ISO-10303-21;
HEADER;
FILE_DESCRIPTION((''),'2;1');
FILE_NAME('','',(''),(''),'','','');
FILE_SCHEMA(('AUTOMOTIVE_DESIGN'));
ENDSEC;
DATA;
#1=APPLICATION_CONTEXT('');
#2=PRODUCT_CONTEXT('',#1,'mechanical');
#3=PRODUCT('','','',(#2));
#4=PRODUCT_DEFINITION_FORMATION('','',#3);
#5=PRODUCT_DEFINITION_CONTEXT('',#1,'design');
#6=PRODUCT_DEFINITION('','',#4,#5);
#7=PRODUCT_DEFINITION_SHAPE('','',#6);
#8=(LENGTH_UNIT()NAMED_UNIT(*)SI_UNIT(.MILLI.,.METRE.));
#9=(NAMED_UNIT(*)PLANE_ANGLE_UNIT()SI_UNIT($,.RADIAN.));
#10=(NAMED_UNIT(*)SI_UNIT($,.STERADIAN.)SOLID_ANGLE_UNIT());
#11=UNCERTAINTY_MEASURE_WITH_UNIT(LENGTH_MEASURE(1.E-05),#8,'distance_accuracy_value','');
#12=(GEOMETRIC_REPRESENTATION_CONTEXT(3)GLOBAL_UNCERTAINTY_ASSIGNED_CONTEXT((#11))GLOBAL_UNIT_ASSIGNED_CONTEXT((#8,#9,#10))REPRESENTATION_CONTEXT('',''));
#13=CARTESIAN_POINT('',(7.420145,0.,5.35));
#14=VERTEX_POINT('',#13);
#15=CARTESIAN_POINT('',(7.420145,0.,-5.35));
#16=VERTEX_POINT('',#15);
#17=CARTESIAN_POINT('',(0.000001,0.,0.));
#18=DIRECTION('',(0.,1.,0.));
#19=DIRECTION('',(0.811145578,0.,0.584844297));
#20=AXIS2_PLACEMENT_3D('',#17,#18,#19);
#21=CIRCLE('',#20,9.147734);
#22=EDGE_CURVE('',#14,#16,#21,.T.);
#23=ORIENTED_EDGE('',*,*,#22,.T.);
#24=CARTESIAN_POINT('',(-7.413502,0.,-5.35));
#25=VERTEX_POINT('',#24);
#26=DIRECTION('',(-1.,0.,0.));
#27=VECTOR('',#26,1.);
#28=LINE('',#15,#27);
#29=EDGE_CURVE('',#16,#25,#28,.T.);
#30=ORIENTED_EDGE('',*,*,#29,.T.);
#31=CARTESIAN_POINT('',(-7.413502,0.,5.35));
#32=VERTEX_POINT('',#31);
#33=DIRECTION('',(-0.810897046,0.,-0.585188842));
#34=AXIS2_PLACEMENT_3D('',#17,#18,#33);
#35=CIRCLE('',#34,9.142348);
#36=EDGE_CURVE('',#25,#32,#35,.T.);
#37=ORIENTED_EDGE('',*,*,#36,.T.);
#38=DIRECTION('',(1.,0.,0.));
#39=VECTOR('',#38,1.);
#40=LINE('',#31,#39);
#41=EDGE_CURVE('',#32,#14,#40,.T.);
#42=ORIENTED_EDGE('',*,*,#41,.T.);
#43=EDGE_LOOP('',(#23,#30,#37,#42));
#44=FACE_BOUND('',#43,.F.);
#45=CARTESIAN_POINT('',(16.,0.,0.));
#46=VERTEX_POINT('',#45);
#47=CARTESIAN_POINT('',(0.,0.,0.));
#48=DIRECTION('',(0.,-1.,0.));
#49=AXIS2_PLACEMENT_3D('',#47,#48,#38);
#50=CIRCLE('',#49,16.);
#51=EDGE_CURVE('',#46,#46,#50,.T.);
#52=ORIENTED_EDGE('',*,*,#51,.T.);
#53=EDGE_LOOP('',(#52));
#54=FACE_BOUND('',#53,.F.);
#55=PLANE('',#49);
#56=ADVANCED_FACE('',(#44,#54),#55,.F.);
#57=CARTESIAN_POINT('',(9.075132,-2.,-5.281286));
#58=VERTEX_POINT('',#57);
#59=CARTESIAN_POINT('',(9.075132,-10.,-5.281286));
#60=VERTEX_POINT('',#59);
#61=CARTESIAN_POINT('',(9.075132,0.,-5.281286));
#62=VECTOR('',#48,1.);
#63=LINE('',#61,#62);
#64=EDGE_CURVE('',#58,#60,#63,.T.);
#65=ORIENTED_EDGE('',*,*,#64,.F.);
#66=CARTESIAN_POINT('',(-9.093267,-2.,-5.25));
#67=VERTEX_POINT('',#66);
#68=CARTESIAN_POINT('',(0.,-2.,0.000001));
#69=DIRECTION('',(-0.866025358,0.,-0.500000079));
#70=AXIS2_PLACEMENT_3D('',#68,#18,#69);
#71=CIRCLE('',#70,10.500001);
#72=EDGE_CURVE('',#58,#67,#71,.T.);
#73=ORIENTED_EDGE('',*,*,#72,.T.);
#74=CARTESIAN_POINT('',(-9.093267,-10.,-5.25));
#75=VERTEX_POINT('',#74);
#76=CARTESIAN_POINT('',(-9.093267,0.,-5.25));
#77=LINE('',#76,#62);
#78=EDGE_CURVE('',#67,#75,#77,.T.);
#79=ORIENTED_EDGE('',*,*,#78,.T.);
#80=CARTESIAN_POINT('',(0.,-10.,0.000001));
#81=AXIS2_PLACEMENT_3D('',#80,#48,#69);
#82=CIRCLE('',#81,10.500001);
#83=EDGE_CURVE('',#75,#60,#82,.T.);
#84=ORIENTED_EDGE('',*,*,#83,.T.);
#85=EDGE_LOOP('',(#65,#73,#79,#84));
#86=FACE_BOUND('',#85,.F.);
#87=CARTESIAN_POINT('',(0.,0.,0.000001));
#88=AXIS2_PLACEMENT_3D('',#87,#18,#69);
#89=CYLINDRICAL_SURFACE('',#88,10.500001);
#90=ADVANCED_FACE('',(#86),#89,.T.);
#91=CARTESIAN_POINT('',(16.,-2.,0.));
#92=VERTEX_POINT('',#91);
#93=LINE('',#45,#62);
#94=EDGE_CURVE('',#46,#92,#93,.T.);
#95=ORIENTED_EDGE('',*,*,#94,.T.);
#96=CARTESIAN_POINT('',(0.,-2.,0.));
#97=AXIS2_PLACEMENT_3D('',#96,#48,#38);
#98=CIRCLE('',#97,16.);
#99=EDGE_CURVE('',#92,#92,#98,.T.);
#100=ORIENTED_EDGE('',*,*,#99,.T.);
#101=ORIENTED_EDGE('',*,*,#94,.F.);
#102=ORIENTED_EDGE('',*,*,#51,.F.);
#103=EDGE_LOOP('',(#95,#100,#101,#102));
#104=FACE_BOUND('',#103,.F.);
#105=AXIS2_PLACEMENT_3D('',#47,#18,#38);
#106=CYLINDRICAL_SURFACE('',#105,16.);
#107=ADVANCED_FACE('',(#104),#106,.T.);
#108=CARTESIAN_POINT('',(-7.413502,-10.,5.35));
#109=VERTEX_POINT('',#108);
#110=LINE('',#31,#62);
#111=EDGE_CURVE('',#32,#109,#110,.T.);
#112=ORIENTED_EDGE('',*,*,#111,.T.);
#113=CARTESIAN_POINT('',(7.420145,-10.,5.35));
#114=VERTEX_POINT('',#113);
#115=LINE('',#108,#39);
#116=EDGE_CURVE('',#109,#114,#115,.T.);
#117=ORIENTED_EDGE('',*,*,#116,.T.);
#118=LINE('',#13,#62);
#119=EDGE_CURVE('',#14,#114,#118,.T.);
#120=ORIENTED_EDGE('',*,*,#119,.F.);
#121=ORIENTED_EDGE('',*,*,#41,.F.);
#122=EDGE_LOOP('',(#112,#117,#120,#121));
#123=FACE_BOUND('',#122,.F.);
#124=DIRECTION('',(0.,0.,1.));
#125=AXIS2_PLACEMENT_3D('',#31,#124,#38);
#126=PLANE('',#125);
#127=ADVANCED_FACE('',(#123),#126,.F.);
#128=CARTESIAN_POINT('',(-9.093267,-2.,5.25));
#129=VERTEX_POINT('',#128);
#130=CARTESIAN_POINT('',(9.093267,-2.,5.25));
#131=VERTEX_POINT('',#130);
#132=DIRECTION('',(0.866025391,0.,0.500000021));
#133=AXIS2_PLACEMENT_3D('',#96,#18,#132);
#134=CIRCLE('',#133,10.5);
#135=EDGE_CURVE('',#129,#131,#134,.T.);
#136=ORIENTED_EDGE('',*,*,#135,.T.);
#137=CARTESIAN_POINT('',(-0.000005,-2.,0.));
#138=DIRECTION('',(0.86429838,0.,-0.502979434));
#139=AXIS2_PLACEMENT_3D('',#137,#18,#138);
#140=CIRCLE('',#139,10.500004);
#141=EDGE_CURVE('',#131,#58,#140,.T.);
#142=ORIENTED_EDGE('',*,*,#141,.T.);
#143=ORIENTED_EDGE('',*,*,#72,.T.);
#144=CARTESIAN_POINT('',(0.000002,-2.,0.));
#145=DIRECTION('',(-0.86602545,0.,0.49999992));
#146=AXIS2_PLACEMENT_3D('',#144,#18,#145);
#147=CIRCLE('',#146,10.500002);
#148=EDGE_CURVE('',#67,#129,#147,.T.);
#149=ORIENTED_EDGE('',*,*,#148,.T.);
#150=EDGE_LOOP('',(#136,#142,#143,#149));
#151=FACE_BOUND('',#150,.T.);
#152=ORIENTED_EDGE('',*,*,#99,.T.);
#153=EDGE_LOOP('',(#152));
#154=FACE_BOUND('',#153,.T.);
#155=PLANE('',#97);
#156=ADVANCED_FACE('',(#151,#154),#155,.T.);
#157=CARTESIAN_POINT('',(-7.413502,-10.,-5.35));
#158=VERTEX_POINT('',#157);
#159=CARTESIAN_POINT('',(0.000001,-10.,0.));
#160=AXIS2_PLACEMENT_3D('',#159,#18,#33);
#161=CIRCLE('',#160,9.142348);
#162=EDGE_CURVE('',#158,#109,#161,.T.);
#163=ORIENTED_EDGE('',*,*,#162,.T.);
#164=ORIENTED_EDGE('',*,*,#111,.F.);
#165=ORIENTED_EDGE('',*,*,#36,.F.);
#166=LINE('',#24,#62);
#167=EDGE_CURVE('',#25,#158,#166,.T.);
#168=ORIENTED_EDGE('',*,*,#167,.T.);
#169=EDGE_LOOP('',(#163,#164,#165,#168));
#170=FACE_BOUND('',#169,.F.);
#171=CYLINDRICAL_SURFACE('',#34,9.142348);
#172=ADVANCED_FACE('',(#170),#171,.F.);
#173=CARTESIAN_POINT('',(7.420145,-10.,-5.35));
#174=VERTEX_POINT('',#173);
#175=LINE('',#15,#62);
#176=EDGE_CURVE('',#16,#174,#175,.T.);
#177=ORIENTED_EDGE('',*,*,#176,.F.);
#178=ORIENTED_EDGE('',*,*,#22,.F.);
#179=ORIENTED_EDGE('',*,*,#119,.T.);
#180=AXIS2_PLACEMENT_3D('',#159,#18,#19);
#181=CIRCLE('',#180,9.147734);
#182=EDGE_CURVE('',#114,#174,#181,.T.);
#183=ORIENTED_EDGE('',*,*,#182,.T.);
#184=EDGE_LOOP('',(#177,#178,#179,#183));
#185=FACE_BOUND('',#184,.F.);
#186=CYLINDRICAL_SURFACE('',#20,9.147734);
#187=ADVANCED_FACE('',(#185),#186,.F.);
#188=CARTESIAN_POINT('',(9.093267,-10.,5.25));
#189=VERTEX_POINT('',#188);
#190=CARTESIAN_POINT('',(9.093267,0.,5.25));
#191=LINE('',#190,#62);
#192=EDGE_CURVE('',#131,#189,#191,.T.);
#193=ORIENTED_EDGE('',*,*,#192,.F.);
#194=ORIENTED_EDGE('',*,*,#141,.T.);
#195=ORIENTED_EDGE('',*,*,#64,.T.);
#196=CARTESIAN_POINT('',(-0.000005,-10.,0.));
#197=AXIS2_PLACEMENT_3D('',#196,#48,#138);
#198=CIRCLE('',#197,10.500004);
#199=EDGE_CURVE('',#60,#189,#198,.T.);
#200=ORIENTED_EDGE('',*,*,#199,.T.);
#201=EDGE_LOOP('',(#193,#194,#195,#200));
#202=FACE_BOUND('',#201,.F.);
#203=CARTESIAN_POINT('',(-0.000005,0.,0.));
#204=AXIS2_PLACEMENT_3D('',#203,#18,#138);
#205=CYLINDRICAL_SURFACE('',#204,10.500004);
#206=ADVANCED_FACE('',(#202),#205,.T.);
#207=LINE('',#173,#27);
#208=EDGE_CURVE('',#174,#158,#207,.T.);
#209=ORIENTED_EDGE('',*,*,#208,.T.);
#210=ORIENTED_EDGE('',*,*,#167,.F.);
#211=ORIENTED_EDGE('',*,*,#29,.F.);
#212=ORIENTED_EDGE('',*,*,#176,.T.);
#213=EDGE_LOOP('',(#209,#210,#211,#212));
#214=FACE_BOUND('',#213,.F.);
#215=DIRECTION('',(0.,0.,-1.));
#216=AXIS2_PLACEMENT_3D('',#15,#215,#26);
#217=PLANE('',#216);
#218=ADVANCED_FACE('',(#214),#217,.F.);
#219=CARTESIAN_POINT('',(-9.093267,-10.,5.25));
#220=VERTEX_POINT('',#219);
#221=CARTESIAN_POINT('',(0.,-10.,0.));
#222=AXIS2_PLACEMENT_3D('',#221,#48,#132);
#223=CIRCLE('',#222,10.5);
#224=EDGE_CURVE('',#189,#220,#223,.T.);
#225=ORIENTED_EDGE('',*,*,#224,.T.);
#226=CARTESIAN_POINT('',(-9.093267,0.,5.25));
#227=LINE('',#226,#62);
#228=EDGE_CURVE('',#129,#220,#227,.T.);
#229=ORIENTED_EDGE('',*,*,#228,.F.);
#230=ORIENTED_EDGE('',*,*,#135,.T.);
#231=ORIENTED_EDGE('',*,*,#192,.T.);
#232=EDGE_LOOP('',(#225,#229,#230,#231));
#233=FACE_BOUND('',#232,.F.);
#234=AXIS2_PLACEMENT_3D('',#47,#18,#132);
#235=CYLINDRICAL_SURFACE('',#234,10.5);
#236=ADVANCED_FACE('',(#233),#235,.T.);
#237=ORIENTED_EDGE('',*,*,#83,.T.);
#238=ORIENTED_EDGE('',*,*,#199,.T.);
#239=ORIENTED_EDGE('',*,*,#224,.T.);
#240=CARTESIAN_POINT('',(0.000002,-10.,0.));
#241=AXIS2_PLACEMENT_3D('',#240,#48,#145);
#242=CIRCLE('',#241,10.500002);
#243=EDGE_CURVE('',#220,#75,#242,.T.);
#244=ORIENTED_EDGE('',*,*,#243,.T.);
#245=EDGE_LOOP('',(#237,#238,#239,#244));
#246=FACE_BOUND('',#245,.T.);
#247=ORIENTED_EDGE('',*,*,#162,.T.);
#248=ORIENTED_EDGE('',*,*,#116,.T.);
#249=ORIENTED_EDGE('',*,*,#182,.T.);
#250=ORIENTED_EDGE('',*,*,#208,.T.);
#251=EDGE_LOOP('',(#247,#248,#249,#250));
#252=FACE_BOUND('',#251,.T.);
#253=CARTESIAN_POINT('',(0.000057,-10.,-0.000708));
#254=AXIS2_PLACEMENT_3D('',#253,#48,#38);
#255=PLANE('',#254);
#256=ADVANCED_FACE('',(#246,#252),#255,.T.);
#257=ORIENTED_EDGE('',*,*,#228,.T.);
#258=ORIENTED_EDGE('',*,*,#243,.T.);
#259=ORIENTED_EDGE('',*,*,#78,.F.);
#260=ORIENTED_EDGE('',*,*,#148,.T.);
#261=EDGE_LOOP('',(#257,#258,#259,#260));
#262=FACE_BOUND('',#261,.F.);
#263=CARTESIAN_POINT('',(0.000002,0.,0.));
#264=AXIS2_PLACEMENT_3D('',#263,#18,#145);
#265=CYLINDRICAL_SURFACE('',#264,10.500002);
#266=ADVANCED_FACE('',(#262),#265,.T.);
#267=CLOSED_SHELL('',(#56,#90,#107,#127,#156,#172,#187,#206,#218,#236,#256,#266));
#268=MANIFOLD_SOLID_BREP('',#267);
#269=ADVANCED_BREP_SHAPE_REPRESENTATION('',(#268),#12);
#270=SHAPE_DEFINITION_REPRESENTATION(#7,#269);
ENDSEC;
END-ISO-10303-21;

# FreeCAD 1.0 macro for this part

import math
import FreeCAD as App
import Part
import Sketcher
Q = App.Units.Quantity

doc = App.newDocument("Part")
params = doc.addObject("Spreadsheet::Sheet", "Params")
for row, (alias, value) in enumerate([
    ("sketch1_diameter", "32 mm"),
    ("sketch1_diameter2", "19 mm"),
    ("pad1_length", "2 mm"),
    ("sketch2_radius", "10.5 mm"),
    ("pad2_length", "10 mm"),
], start=1):
    params.set(f"A{row}", alias)
    params.set(f"B{row}", "=" + value)
    params.setAlias(f"B{row}", alias)

body = doc.addObject("PartDesign::Body", "Body")

# Sketch on XZ plane
sketch1 = body.newObject("Sketcher::SketchObject", "Sketch")
sketch1.AttachmentSupport = (doc.getObject("XZ_Plane"), [""])
sketch1.MapMode = "FlatFace"
sketch1.addGeometry(Part.Circle(App.Vector(0, 0, 0), App.Vector(0, 0, 1), 16), False)
sketch1.addGeometry(Part.Circle(App.Vector(0, 0, 0), App.Vector(0, 0, 1), 10), False)
sketch1.addConstraint(Sketcher.Constraint("Coincident", 0, 3, -1, 1))
sketch1.addConstraint(Sketcher.Constraint("Coincident", 1, 3, -1, 1))
sketch1.addConstraint(Sketcher.Constraint("Diameter", 0, Q("32 mm")))
sketch1.addConstraint(Sketcher.Constraint("Diameter", 1, Q("19 mm")))
sketch1.setExpression("Constraints[2]", "Params.sketch1_diameter")
sketch1.setExpression("Constraints[3]", "Params.sketch1_diameter2")
pad1 = body.newObject("PartDesign::Pad", "Pad")
pad1.Profile = sketch1
pad1.setExpression("Length", "Params.pad1_length")

# Sketch on XZ plane
sketch2 = body.newObject("Sketcher::SketchObject", "Sketch001")
sketch2.AttachmentSupport = (doc.getObject("XZ_Plane"), [""])
sketch2.MapMode = "FlatFace"
sketch2.addGeometry(Part.ArcOfCircle(Part.Circle(App.Vector(0, 0, 0), App.Vector(0, 0, 1), 11), math.radians(-30), math.radians(30)), False)
sketch2.addGeometry(Part.ArcOfCircle(Part.Circle(App.Vector(0, 0, 0), App.Vector(0, 0, 1), 11), math.radians(30), math.radians(150)), False)
sketch2.addGeometry(Part.ArcOfCircle(Part.Circle(App.Vector(0, 0, 0), App.Vector(0, 0, 1), 11), math.radians(150), math.radians(210)), False)
sketch2.addGeometry(Part.ArcOfCircle(Part.Circle(App.Vector(0, 0, 0), App.Vector(0, 0, 1), 11), math.radians(-150), math.radians(-30)), False)
sketch2.addGeometry(Part.LineSegment(App.Vector(7, -5, 0), App.Vector(-7, -5, 0)), False)
sketch2.addGeometry(Part.ArcOfCircle(Part.Circle(App.Vector(0, 0, 0), App.Vector(0, 0, 1), 9), math.radians(144), math.radians(216)), False)
sketch2.addGeometry(Part.LineSegment(App.Vector(-7, 5, 0), App.Vector(7, 5, 0)), False)
sketch2.addGeometry(Part.ArcOfCircle(Part.Circle(App.Vector(0, 0, 0), App.Vector(0, 0, 1), 9), math.radians(-36), math.radians(36)), False)
sketch2.addConstraint(Sketcher.Constraint("Tangent", 0, 2, 1, 1))
sketch2.addConstraint(Sketcher.Constraint("Tangent", 1, 2, 2, 1))
sketch2.addConstraint(Sketcher.Constraint("Tangent", 2, 2, 3, 1))
sketch2.addConstraint(Sketcher.Constraint("Tangent", 3, 2, 0, 1))
sketch2.addConstraint(Sketcher.Constraint("Coincident", 4, 2, 5, 2))
sketch2.addConstraint(Sketcher.Constraint("Coincident", 5, 1, 6, 1))
sketch2.addConstraint(Sketcher.Constraint("Coincident", 6, 2, 7, 2))
sketch2.addConstraint(Sketcher.Constraint("Coincident", 7, 1, 4, 1))
sketch2.addConstraint(Sketcher.Constraint("Horizontal", 4))
sketch2.addConstraint(Sketcher.Constraint("Horizontal", 6))
sketch2.addConstraint(Sketcher.Constraint("Coincident", 0, 3, -1, 1))
sketch2.addConstraint(Sketcher.Constraint("Coincident", 5, 3, -1, 1))
sketch2.addConstraint(Sketcher.Constraint("Coincident", 7, 3, -1, 1))
sketch2.addConstraint(Sketcher.Constraint("Equal", 1, 2))
sketch2.addConstraint(Sketcher.Constraint("Horizontal", 0, 2, 1, 2))
sketch2.addConstraint(Sketcher.Constraint("Vertical", 1, 2, 2, 2))
sketch2.addConstraint(Sketcher.Constraint("Vertical", 4, 2, 5, 1))
sketch2.addConstraint(Sketcher.Constraint("Radius", 1, Q("10.5 mm")))
sketch2.addConstraint(Sketcher.Constraint("DistanceY", 2, 2, 1, 2, Q("10.5 mm")))
sketch2.addConstraint(Sketcher.Constraint("DistanceY", 4, 2, 2, 2, Q("0.1 mm")))
sketch2.addConstraint(Sketcher.Constraint("Radius", 5, Q("9.142348 mm")))
sketch2.addConstraint(Sketcher.Constraint("Radius", 7, Q("9.147734 mm")))
sketch2.addConstraint(Sketcher.Constraint("DistanceX", 2, 3, 3, 2, Q("9.07513 mm")))
sketch2.setExpression("Constraints[17]", "Params.sketch2_radius")
pad2 = body.newObject("PartDesign::Pad", "Pad001")
pad2.Profile = sketch2
pad2.setExpression("Length", "Params.pad2_length")

doc.recompute()
